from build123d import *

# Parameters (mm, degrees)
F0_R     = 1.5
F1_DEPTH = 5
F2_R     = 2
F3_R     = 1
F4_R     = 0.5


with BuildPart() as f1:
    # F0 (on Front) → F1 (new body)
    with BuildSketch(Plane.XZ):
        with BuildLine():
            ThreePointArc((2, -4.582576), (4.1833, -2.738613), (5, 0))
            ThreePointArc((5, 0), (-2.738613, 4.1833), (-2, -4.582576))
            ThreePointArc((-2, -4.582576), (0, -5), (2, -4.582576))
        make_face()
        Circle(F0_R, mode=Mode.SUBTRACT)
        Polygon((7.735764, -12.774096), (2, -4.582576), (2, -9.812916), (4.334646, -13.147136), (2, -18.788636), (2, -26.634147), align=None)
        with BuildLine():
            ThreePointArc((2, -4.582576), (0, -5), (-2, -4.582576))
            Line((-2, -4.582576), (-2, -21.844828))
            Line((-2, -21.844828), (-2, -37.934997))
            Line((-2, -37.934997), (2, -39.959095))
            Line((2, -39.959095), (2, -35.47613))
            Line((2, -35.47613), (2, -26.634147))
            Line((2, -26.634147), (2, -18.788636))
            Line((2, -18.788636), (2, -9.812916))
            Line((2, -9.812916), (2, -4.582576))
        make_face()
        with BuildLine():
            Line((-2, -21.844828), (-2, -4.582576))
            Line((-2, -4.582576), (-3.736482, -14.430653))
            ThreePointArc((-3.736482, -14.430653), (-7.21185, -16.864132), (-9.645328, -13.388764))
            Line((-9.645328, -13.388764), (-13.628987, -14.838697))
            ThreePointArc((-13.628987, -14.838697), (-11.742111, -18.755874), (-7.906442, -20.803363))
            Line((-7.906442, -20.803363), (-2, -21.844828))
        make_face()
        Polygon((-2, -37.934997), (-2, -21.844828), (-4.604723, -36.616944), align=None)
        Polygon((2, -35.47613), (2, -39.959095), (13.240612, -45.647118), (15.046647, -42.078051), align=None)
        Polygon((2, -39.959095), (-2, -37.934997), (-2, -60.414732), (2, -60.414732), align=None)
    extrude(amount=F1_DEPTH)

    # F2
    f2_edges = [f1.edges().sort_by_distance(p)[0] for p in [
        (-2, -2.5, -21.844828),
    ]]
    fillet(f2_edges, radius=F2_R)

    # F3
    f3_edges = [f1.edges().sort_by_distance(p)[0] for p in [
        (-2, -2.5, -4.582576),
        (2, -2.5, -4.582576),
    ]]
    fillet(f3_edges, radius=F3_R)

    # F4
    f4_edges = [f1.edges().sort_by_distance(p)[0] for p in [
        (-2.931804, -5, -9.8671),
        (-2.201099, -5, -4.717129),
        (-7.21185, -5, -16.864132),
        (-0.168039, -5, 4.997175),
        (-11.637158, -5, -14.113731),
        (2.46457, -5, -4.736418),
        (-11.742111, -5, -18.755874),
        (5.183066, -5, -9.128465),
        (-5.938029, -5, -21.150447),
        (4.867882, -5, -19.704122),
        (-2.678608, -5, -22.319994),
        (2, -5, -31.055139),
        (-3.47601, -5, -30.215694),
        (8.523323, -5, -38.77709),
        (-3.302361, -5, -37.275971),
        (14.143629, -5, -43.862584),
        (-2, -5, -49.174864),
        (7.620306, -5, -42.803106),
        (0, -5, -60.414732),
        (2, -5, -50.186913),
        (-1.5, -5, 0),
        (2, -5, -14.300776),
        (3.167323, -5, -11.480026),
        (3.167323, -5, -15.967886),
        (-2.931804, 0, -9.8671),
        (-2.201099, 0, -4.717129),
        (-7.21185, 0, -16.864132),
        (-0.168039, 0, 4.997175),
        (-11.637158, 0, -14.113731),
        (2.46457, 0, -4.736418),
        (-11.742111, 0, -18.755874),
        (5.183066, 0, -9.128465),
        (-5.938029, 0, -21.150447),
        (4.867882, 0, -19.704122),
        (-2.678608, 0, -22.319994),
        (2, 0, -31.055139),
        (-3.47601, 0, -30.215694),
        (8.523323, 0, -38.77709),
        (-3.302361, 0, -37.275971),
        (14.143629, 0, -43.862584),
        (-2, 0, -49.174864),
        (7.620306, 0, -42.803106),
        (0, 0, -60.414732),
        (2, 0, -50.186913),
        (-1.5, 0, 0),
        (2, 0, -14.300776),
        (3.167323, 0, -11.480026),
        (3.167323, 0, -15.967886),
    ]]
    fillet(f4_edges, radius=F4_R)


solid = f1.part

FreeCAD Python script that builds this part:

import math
import FreeCAD as App
import Part
import Sketcher
Q = App.Units.Quantity


def edges_at(feature, points):
    """Names of the edges that pass closest to the given points."""
    edges = feature.Shape.Edges
    near = lambda p: min(range(len(edges)), key=lambda i: edges[i].distToShape(Part.Vertex(*p))[0])
    return sorted({f"Edge{near(p) + 1}" for p in points})


def add_polygon(sketch, points):
    """Adds a closed chain of lines whose ends are joined by coincident constraints."""
    first, n = sketch.GeometryCount, len(points)
    for a, b in zip(points, points[1:] + points[:1]):
        sketch.addGeometry(Part.LineSegment(App.Vector(*a, 0), App.Vector(*b, 0)), False)
    for i in range(n):
        sketch.addConstraint(Sketcher.Constraint("Coincident", first + i, 2, first + (i + 1) % n, 1))

doc = App.newDocument("Part")
params = doc.addObject("Spreadsheet::Sheet", "Params")
for row, (alias, value) in enumerate([
    ("sketch1_diameter", "3 mm"),
    ("sketch1_radius", "5.000001 mm"),
    ("sketch1_radius2", "3 mm"),
    ("sketch1_radius3", "7 mm"),
    ("sketch1_width", "4 mm"),
    ("pad1_length", "5 mm"),
    ("fillet_radius", "2 mm"),
    ("fillet2_radius", "1 mm"),
    ("fillet3_radius", "0.5 mm"),
], start=1):
    params.set(f"A{row}", alias)
    params.set(f"B{row}", "=" + value)
    params.setAlias(f"B{row}", alias)

body = doc.addObject("PartDesign::Body", "Body")

sketch1 = doc.addObject("Sketcher::SketchObject", "Sketch")
body.addObject(sketch1)
sketch1.AttachmentSupport = (doc.XZ_Plane, [""])
sketch1.MapMode = "FlatFace"
sketch1.addGeometry(Part.ArcOfCircle(Part.Circle(App.Vector(0, 0, 0), App.Vector(0, 0, 1), 5), math.radians(-66), math.radians(0)), False)
sketch1.addGeometry(Part.ArcOfCircle(Part.Circle(App.Vector(0, 0, 0), App.Vector(0, 0, 1), 5), math.radians(0), math.radians(246)), False)
sketch1.addGeometry(Part.LineSegment(App.Vector(-2, -4.6, 0), App.Vector(-3.7, -14.4, 0)), False)
sketch1.addGeometry(Part.ArcOfCircle(Part.Circle(App.Vector(-6.7, -13.9, 0), App.Vector(0, 0, 1), 3), math.radians(170), math.radians(350)), False)
sketch1.addGeometry(Part.LineSegment(App.Vector(-9.6, -13.4, 0), App.Vector(-13.6, -14.8, 0)), False)
sketch1.addGeometry(Part.ArcOfCircle(Part.Circle(App.Vector(-6.7, -13.9, 0), App.Vector(0, 0, 1), 7), math.radians(-172), math.radians(-100)), False)
sketch1.addGeometry(Part.LineSegment(App.Vector(-7.9, -20.8, 0), App.Vector(-2, -21.8, 0)), False)
sketch1.addGeometry(Part.LineSegment(App.Vector(-2, -21.8, 0), App.Vector(-4.6, -36.6, 0)), False)
sketch1.addGeometry(Part.LineSegment(App.Vector(-4.6, -36.6, 0), App.Vector(-2, -37.9, 0)), False)
sketch1.addGeometry(Part.LineSegment(App.Vector(-2, -37.9, 0), App.Vector(-2, -60.4, 0)), False)
sketch1.addGeometry(Part.LineSegment(App.Vector(-2, -60.4, 0), App.Vector(2, -60.4, 0)), False)
sketch1.addGeometry(Part.LineSegment(App.Vector(2, -60.4, 0), App.Vector(2, -40, 0)), False)
sketch1.addGeometry(Part.LineSegment(App.Vector(2, -40, 0), App.Vector(13.2, -45.6, 0)), False)
sketch1.addGeometry(Part.LineSegment(App.Vector(13.2, -45.6, 0), App.Vector(15, -42.1, 0)), False)
sketch1.addGeometry(Part.LineSegment(App.Vector(15, -42.1, 0), App.Vector(2, -35.5, 0)), False)
sketch1.addGeometry(Part.LineSegment(App.Vector(2, -35.5, 0), App.Vector(2, -26.6, 0)), False)
sketch1.addGeometry(Part.LineSegment(App.Vector(2, -26.6, 0), App.Vector(7.7, -12.8, 0)), False)
sketch1.addGeometry(Part.LineSegment(App.Vector(7.7, -12.8, 0), App.Vector(2, -4.6, 0)), False)
sketch1.addGeometry(Part.Circle(App.Vector(0, 0, 0), App.Vector(0, 0, 1), 1.5), False)
add_polygon(sketch1, [(2, -18.8), (2, -9.8), (4.3, -13.1)])
sketch1.addConstraint([
    Sketcher.Constraint("Tangent", 0, 2, 1, 1),
    Sketcher.Constraint("Coincident", 1, 2, 2, 1),
    Sketcher.Constraint("Tangent", 2, 2, 3, 2),
    Sketcher.Constraint("Coincident", 3, 1, 4, 1),
    Sketcher.Constraint("Coincident", 4, 2, 5, 1),
    Sketcher.Constraint("Tangent", 5, 2, 6, 1),
    Sketcher.Constraint("Coincident", 6, 2, 7, 1),
    Sketcher.Constraint("Coincident", 7, 2, 8, 1),
    Sketcher.Constraint("Coincident", 8, 2, 9, 1),
    Sketcher.Constraint("Coincident", 9, 2, 10, 1),
    Sketcher.Constraint("Coincident", 10, 2, 11, 1),
    Sketcher.Constraint("Coincident", 11, 2, 12, 1),
    Sketcher.Constraint("Coincident", 12, 2, 13, 1),
    Sketcher.Constraint("Coincident", 13, 2, 14, 1),
    Sketcher.Constraint("Coincident", 14, 2, 15, 1),
    Sketcher.Constraint("Coincident", 15, 2, 16, 1),
    Sketcher.Constraint("Coincident", 16, 2, 17, 1),
    Sketcher.Constraint("Coincident", 17, 2, 0, 1),
    Sketcher.Constraint("Vertical", 9),
    Sketcher.Constraint("Horizontal", 10),
    Sketcher.Constraint("Vertical", 11),
    Sketcher.Constraint("Vertical", 15),
    Sketcher.Constraint("Vertical", 19),
    Sketcher.Constraint("Coincident", 0, 3, -1, 1),
    Sketcher.Constraint("Coincident", 18, 3, -1, 1),
    Sketcher.Constraint("Coincident", 5, 3, 3, 3),
    Sketcher.Constraint("Equal", 0, 1),
    Sketcher.Constraint("PointOnObject", 0, 2, -1),
    Sketcher.Constraint("Perpendicular", 2, 6),
    Sketcher.Constraint("Perpendicular", 6, 7),
    Sketcher.Constraint("Parallel", 8, 12),
    Sketcher.Constraint("Perpendicular", 12, 13),
    Sketcher.Constraint("Perpendicular", 13, 14),
    Sketcher.Constraint("Parallel", 17, 20),
    Sketcher.Constraint("Parallel", 16, 21),
    Sketcher.Constraint("Horizontal", 1, 2, 17, 2),
    Sketcher.Constraint("Vertical", 1, 2, 6, 2),
    Sketcher.Constraint("Vertical", 6, 2, 8, 2),
    Sketcher.Constraint("Vertical", 11, 2, 14, 2),
    Sketcher.Constraint("Vertical", 15, 2, 17, 2),
    Sketcher.Constraint("Vertical", 17, 2, 19, 2),
    Sketcher.Constraint("Equal", 7, 16),
    Sketcher.Constraint("Equal", 2, 17),
    Sketcher.Constraint("Diameter", 18, 3.0),
    Sketcher.Constraint("Radius", 0, 5.000001),
    Sketcher.Constraint("Radius", 3, 3.0),
    Sketcher.Constraint("Radius", 5, 7.0),
    Sketcher.Constraint("DistanceX", 10, 1, 10, 2, 4.0),
    Sketcher.Constraint("Angle", 2, Q("-100.000002 deg")),
    Sketcher.Constraint("Angle", 4, Q("-160.000004 deg")),
    Sketcher.Constraint("Angle", 17, Q("125 deg")),
    Sketcher.Constraint("Distance", 2, 10.0),
    Sketcher.Constraint("Distance", 7, 15.0),
    Sketcher.Constraint("Distance", 13, 4.0),
    Sketcher.Constraint("DistanceY", 19, 1, 19, 2, 8.97572),
    Sketcher.Constraint("DistanceY", 5, 2, 3, 1, 7.414599),
    Sketcher.Constraint("DistanceY", 14, 2, 6, 2, 13.631302),
    Sketcher.Constraint("Distance", 8, 2.91922),
    Sketcher.Constraint("DistanceY", 9, 2, 9, 1, 22.479735),
    Sketcher.Constraint("DistanceY", 13, 2, -1, 1, 42.078051),
    Sketcher.Constraint("DistanceY", 19, 2, 17, 2, 5.23034),
])
sketch1.setExpression("Constraints[46]", "Params.sketch1_diameter")
sketch1.setExpression("Constraints[47]", "Params.sketch1_radius")
sketch1.setExpression("Constraints[48]", "Params.sketch1_radius2")
sketch1.setExpression("Constraints[49]", "Params.sketch1_radius3")
sketch1.setExpression("Constraints[50]", "Params.sketch1_width")
pad1 = doc.addObject("PartDesign::Pad", "Pad")
body.addObject(pad1)
pad1.Profile = sketch1
pad1.setExpression("Length", "Params.pad1_length")
doc.recompute()

fillet = doc.addObject("PartDesign::Fillet", "Fillet")
body.addObject(fillet)
fillet.Base = (pad1, edges_at(pad1, [(-2, -2.5, -21.845)]))
fillet.setExpression("Radius", "Params.fillet_radius")
doc.recompute()

fillet2 = doc.addObject("PartDesign::Fillet", "Fillet001")
body.addObject(fillet2)
fillet2.Base = (fillet, edges_at(fillet, [(-2, -2.5, -4.583), (2, -2.5, -4.583)]))
fillet2.setExpression("Radius", "Params.fillet2_radius")
doc.recompute()

fillet3 = doc.addObject("PartDesign::Fillet", "Fillet002")
body.addObject(fillet3)
fillet3.Base = (fillet2, edges_at(fillet2, [
    (-2.932, -5, -9.867),
    (-2.201, -5, -4.717),
    (-7.212, -5, -16.864),
    (-2.453, -5, 4.357),
    (-11.637, -5, -14.114),
    (2.465, -5, -4.736),
    (-11.742, -5, -18.756),
    (5.183, -5, -9.128),
    (-5.938, -5, -21.15),
    (4.868, -5, -19.704),
    (-2.679, -5, -22.32),
    (2, -5, -31.055),
    (-3.476, -5, -30.216),
    (8.523, -5, -38.777),
    (-3.302, -5, -37.276),
    (14.144, -5, -43.863),
    (-2, -5, -49.175),
    (7.62, -5, -42.803),
    (0, -5, -60.415),
    (2, -5, -50.187),
    (-1.5, -5, 0),
    (2, -5, -14.301),
    (3.167, -5, -11.48),
    (3.167, -5, -15.968),
    (-2.932, 0, -9.867),
    (-2.201, 0, -4.717),
    (-7.212, 0, -16.864),
    (-2.453, 0, 4.357),
    (-11.637, 0, -14.114),
    (2.465, 0, -4.736),
    (-11.742, 0, -18.756),
    (5.183, 0, -9.128),
    (-5.938, 0, -21.15),
    (4.868, 0, -19.704),
    (-2.679, 0, -22.32),
    (2, 0, -31.055),
    (-3.476, 0, -30.216),
    (8.523, 0, -38.777),
    (-3.302, 0, -37.276),
    (14.144, 0, -43.863),
    (-2, 0, -49.175),
    (7.62, 0, -42.803),
    (0, 0, -60.415),
    (2, 0, -50.187),
    (-1.5, 0, 0),
    (2, 0, -14.301),
    (3.167, 0, -11.48),
    (3.167, 0, -15.968),
]))
fillet3.setExpression("Radius", "Params.fillet3_radius")

doc.recompute()
